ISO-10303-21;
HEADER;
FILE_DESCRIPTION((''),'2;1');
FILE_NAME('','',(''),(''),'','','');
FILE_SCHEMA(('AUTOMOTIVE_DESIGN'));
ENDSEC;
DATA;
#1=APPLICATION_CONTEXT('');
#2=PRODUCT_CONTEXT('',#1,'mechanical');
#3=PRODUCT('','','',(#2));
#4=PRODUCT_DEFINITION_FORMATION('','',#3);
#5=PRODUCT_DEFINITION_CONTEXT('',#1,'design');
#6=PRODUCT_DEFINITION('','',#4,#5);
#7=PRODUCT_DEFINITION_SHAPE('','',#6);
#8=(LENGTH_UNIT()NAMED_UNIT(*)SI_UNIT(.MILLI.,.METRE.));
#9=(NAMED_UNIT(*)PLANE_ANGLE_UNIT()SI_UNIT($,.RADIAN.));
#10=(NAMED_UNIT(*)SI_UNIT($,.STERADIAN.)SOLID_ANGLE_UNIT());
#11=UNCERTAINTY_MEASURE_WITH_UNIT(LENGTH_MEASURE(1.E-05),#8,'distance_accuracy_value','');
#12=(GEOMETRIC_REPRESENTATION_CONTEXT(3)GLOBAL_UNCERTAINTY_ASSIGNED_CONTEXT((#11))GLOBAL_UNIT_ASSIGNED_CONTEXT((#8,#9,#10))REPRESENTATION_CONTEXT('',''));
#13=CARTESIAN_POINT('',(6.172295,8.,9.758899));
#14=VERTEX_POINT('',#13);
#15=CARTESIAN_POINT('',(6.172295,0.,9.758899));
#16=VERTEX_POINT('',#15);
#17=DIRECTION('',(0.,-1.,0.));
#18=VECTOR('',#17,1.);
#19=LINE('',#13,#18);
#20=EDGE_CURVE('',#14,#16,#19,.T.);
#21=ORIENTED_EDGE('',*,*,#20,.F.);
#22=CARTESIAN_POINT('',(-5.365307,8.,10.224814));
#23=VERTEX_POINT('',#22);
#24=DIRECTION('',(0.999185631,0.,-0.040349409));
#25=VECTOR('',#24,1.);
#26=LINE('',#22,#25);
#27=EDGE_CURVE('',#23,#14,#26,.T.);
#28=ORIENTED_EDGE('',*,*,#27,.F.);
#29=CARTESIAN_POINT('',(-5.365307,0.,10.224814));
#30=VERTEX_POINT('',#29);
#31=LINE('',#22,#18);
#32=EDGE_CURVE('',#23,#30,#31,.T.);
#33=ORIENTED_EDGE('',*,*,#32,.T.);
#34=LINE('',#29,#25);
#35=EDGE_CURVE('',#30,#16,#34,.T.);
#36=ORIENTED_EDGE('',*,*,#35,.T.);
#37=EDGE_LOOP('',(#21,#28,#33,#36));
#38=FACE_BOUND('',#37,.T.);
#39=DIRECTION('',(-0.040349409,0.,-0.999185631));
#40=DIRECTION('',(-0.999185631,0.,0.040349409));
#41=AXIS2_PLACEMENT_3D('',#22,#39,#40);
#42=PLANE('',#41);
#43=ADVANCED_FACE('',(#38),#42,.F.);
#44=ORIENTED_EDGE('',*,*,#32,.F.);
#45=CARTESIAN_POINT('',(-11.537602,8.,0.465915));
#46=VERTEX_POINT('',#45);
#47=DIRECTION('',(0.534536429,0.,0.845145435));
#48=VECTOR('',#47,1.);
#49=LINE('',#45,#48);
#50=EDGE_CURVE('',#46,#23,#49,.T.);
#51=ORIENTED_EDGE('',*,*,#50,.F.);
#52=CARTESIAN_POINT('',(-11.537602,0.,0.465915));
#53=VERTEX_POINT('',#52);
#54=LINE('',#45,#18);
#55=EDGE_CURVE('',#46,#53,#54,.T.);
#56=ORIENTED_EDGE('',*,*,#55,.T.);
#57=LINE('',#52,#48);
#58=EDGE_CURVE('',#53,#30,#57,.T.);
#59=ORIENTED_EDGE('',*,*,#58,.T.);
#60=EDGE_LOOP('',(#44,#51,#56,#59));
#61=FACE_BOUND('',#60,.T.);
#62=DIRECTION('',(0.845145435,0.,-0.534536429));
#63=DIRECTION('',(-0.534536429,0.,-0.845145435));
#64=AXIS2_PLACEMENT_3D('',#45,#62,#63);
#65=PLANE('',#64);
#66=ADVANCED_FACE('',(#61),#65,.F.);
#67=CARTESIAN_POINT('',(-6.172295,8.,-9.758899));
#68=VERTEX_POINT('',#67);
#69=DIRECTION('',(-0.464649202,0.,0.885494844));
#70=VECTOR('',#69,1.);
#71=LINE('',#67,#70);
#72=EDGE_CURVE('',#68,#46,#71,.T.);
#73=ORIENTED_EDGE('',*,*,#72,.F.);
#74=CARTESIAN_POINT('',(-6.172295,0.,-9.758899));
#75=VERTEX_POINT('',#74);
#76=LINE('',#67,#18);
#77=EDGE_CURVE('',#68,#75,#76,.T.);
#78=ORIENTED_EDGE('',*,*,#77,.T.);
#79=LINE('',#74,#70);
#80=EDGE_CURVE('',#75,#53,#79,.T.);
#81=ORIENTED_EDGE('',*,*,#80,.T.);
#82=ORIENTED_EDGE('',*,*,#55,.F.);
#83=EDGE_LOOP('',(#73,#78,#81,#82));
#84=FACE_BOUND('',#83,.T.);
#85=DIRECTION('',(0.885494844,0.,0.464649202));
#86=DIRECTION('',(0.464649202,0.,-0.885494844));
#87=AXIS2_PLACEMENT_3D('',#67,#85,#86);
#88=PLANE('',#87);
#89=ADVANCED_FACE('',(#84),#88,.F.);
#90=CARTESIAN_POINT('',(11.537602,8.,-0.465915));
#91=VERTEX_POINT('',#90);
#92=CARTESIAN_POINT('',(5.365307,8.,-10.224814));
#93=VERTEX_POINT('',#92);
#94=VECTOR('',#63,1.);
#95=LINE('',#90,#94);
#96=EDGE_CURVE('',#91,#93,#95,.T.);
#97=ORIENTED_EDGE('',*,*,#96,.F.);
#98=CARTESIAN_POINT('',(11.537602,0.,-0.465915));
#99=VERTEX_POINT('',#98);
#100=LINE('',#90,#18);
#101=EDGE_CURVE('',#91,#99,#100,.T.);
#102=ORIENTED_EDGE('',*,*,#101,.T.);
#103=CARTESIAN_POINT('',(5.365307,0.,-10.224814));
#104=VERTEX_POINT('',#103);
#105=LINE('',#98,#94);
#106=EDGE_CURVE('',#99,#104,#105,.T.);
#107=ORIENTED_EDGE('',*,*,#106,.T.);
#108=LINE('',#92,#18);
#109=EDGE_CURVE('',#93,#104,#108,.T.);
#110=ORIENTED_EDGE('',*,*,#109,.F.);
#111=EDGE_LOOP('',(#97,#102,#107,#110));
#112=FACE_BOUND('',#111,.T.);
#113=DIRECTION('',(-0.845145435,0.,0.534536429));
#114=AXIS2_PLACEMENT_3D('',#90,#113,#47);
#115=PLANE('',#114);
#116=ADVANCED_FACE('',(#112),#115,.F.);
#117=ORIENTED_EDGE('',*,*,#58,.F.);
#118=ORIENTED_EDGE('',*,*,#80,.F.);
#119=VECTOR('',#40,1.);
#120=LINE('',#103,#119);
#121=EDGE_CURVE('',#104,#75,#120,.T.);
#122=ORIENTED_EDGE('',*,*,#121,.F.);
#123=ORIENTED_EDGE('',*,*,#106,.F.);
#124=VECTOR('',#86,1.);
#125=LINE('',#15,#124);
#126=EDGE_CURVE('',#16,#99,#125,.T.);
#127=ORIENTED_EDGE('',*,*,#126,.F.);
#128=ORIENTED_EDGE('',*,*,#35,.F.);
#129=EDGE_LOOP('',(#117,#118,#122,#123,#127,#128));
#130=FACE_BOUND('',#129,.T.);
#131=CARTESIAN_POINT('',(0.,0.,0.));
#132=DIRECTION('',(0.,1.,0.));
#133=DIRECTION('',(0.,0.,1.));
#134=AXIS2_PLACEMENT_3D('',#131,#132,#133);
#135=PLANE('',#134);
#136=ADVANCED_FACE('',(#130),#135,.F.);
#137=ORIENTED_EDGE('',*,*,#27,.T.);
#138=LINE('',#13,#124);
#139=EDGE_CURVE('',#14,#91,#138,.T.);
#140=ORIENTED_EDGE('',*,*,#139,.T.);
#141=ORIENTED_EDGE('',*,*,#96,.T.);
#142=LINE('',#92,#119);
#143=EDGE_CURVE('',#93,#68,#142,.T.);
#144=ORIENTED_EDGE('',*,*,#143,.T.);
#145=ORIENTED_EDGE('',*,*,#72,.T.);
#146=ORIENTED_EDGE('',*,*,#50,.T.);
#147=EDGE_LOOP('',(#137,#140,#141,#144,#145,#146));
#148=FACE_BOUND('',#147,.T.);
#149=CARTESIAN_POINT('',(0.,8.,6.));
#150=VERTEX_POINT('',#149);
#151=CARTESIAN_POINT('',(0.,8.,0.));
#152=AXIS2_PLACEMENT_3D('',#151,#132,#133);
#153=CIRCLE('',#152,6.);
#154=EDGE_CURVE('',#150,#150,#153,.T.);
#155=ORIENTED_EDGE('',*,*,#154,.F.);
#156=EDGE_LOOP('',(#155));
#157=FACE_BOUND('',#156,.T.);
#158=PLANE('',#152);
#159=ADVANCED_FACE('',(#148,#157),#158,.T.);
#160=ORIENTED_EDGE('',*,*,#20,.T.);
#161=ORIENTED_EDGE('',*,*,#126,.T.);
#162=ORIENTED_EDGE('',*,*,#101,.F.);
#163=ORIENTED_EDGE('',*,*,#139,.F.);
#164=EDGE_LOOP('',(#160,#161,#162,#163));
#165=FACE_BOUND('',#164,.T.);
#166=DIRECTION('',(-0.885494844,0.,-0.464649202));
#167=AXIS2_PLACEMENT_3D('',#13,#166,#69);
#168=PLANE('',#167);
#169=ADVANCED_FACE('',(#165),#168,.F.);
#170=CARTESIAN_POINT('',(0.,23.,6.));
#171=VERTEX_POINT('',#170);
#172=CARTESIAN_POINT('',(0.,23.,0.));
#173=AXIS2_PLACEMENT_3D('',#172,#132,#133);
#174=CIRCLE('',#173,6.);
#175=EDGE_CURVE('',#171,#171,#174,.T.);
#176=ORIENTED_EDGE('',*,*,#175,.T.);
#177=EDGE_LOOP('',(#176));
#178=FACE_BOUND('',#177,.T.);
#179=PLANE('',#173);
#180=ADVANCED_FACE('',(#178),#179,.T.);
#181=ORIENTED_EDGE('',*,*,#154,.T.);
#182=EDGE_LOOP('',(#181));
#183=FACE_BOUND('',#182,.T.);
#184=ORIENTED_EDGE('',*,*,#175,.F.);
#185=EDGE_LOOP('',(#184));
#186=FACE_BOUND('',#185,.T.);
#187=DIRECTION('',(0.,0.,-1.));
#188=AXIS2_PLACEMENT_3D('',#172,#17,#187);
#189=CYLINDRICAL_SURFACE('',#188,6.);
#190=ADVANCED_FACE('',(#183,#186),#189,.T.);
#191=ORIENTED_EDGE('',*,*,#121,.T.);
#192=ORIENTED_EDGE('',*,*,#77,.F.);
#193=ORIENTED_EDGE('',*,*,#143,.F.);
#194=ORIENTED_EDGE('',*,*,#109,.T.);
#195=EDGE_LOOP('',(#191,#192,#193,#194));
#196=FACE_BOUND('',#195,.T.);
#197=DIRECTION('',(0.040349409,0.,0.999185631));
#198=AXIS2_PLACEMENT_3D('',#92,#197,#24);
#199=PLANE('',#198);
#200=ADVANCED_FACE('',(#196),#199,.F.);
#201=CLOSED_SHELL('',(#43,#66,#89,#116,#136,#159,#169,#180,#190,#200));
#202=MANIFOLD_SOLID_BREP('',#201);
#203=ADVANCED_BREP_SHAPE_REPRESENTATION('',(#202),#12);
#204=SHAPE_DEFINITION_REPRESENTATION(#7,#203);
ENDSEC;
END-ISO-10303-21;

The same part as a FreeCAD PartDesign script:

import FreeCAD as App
import Part
import Sketcher
Q = App.Units.Quantity

doc = App.newDocument("Part")
body = doc.addObject("PartDesign::Body", "Body")

# Sketch on XZ plane
sketch1 = body.newObject("Sketcher::SketchObject", "Sketch")
sketch1.AttachmentSupport = (doc.getObject("XZ_Plane"), [""])
sketch1.MapMode = "FlatFace"
sketch1.addGeometry([
    Part.LineSegment(App.Vector(6, 10, 0), App.Vector(12, 0, 0)),  # 0
    Part.LineSegment(App.Vector(12, 0, 0), App.Vector(5, -10, 0)),  # 1
    Part.LineSegment(App.Vector(5, -10, 0), App.Vector(-6, -10, 0)),  # 2
    Part.LineSegment(App.Vector(-6, -10, 0), App.Vector(-12, 0, 0)),  # 3
    Part.LineSegment(App.Vector(-12, 0, 0), App.Vector(-5, 10, 0)),  # 4
    Part.LineSegment(App.Vector(-5, 10, 0), App.Vector(6, 10, 0)),  # 5
], False)
sketch1.addConstraint([
    Sketcher.Constraint("Coincident", 0, 2, 1, 1),
    Sketcher.Constraint("Coincident", 1, 2, 2, 1),
    Sketcher.Constraint("Coincident", 2, 2, 3, 1),
    Sketcher.Constraint("Coincident", 3, 2, 4, 1),
    Sketcher.Constraint("Coincident", 4, 2, 5, 1),
    Sketcher.Constraint("Coincident", 5, 2, 0, 1),
    Sketcher.Constraint("Symmetric", 0, 2, 3, 2, -1, 1),
    Sketcher.Constraint("Symmetric", 1, 2, 4, 2, -1, 1),
    Sketcher.Constraint("Symmetric", 2, 2, 5, 2, -1, 1),
    Sketcher.Constraint("Equal", 0, 1),
    Sketcher.Constraint("Equal", 1, 2),
    Sketcher.Constraint("DistanceX", -1, 1, 0, 2, Q("11.537602 mm")),
    Sketcher.Constraint("DistanceY", 2, 2, -1, 1, Q("9.758899 mm")),
    Sketcher.Constraint("DistanceY", 1, 2, 0, 2, Q("9.758899 mm")),
    Sketcher.Constraint("DistanceX", 2, 2, 1, 2, Q("11.537602 mm")),
])
pad1 = body.newObject("PartDesign::Pad", "Pad")
pad1.Profile = sketch1
pad1.Length = 8
pad1.Reversed = True

# Sketch on XZ plane
sketch2 = body.newObject("Sketcher::SketchObject", "Sketch001")
sketch2.AttachmentSupport = (doc.getObject("XZ_Plane"), [""])
sketch2.MapMode = "FlatFace"
sketch2.AttachmentOffset = App.Placement(App.Vector(0, 0, -8), App.Rotation())
sketch2.addGeometry(Part.Circle(App.Vector(0, 0, 0), App.Vector(0, 0, 1), 6), False)
sketch2.addConstraint([
    Sketcher.Constraint("Coincident", 0, 3, -1, 1),
    Sketcher.Constraint("Diameter", 0, Q("12 mm")),
])
pad2 = body.newObject("PartDesign::Pad", "Pad001")
pad2.Profile = sketch2
pad2.Length = 15
pad2.Reversed = True

doc.recompute()
